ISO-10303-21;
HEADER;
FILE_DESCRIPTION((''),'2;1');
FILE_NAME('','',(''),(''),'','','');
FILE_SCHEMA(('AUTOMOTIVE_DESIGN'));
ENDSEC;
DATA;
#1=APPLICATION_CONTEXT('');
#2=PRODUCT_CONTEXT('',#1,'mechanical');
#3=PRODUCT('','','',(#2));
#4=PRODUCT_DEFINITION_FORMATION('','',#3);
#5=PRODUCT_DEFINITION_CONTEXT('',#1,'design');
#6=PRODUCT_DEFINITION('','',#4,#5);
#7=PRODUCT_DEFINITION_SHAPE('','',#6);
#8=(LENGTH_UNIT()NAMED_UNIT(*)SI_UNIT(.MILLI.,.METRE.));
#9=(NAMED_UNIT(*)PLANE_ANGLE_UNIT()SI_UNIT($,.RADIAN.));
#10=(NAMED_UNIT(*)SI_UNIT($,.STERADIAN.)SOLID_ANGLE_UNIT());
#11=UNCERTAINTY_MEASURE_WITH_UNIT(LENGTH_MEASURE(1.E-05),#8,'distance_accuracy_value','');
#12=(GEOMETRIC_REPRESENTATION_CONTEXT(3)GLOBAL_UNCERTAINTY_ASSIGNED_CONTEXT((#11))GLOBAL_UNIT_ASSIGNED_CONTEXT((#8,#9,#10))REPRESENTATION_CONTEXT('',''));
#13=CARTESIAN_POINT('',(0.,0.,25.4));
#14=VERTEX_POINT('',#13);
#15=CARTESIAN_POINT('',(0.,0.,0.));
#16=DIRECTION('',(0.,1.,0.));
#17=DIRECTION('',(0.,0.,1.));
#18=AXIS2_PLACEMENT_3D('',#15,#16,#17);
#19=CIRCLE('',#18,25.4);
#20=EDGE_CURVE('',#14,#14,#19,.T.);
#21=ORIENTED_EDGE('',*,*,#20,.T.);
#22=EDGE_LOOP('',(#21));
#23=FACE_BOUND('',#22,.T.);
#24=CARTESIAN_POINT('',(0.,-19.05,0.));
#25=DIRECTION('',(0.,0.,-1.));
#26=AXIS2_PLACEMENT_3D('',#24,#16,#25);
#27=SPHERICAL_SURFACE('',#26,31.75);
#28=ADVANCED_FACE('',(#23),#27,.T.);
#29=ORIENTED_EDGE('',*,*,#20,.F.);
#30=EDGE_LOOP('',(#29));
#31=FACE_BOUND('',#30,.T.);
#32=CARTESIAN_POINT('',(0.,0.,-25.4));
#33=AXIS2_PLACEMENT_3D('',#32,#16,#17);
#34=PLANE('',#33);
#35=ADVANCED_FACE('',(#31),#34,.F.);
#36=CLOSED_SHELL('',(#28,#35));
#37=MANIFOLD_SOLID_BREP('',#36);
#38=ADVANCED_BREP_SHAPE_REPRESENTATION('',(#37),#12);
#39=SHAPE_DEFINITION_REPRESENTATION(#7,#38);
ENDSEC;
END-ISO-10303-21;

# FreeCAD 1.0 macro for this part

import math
import FreeCAD as App
import Part
import Sketcher
Q = App.Units.Quantity

doc = App.newDocument("Part")
body = doc.addObject("PartDesign::Body", "Body")

sketch1 = body.newObject("Sketcher::SketchObject", "Sketch")
sketch1.AttachmentSupport = (doc.getObject("YZ_Plane"), [""])
sketch1.MapMode = "FlatFace"
sketch1.addGeometry([
    Part.LineSegment(App.Vector(0, 0, 0), App.Vector(0, -25, 0)),
    Part.ArcOfCircle(Part.Circle(App.Vector(-19, 0, 0), App.Vector(0, 0, 1), 32), math.radians(-53), math.radians(0)),
    Part.LineSegment(App.Vector(13, 0, 0), App.Vector(0, 0, 0)),
], False)
sketch1.addConstraint([
    Sketcher.Constraint("Coincident", 0, 2, 1, 1),
    Sketcher.Constraint("Coincident", 1, 2, 2, 1),
    Sketcher.Constraint("Coincident", 2, 2, 0, 1),
    Sketcher.Constraint("Vertical", 0),
    Sketcher.Constraint("Horizontal", 2),
    Sketcher.Constraint("Coincident", 2, 2, -1, 1),
    Sketcher.Constraint("PointOnObject", 1, 3, -1),
    Sketcher.Constraint("DistanceY", 0, 2, 0, 1, Q("1 in")),
    Sketcher.Constraint("Radius", 1, Q("1.25 in")),
])
revolution = body.newObject("PartDesign::Revolution", "Revolution")
revolution.Profile = sketch1
revolution.ReferenceAxis = (sketch1, ["H_Axis"])
revolution.Angle = 360

doc.recompute()
